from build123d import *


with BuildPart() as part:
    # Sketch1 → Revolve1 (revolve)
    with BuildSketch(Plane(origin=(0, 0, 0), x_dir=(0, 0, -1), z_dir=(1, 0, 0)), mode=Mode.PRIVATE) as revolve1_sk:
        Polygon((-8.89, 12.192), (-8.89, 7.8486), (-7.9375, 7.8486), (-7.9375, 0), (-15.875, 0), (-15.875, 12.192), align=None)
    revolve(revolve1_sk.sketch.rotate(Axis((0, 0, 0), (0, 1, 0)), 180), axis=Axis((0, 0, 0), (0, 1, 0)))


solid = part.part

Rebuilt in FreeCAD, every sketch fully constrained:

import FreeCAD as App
import Part
import Sketcher
Q = App.Units.Quantity

doc = App.newDocument("Part")
body = doc.addObject("PartDesign::Body", "Body")

sketch1 = body.newObject("Sketcher::SketchObject", "Sketch")
sketch1.AttachmentSupport = (doc.getObject("YZ_Plane"), [""])
sketch1.MapMode = "FlatFace"
sketch1.addGeometry([
    Part.LineSegment(App.Vector(7.8, 8.9, 0), App.Vector(12.2, 8.9, 0)),
    Part.LineSegment(App.Vector(12.2, 8.9, 0), App.Vector(12.2, 15.9, 0)),
    Part.LineSegment(App.Vector(12.2, 15.9, 0), App.Vector(0, 15.9, 0)),
    Part.LineSegment(App.Vector(0, 15.9, 0), App.Vector(0, 7.9, 0)),
    Part.LineSegment(App.Vector(0, 7.9, 0), App.Vector(7.8, 7.9, 0)),
    Part.LineSegment(App.Vector(7.8, 7.9, 0), App.Vector(7.8, 8.9, 0)),
], False)
sketch1.addConstraint([
    Sketcher.Constraint("Coincident", 0, 2, 1, 1),
    Sketcher.Constraint("Coincident", 1, 2, 2, 1),
    Sketcher.Constraint("Coincident", 2, 2, 3, 1),
    Sketcher.Constraint("Coincident", 3, 2, 4, 1),
    Sketcher.Constraint("Coincident", 4, 2, 5, 1),
    Sketcher.Constraint("Coincident", 5, 2, 0, 1),
    Sketcher.Constraint("Horizontal", 0),
    Sketcher.Constraint("Vertical", 1),
    Sketcher.Constraint("Horizontal", 2),
    Sketcher.Constraint("Vertical", 3),
    Sketcher.Constraint("Horizontal", 4),
    Sketcher.Constraint("Vertical", 5),
    Sketcher.Constraint("PointOnObject", 2, 2, -2),
    Sketcher.Constraint("DistanceX", 2, 2, 2, 1, Q("0.48 in")),
    Sketcher.Constraint("DistanceX", 0, 1, 0, 2, Q("0.171 in")),
    Sketcher.Constraint("DistanceY", 1, 1, 1, 2, Q("0.275 in")),
    Sketcher.Constraint("DistanceY", 3, 2, 3, 1, Q("0.3125 in")),
    Sketcher.Constraint("DistanceY", -1, 1, 0, 2, Q("0.35 in")),
])
revolution = body.newObject("PartDesign::Revolution", "Revolution")
revolution.Profile = sketch1
revolution.ReferenceAxis = (sketch1, ["H_Axis"])
revolution.Angle = 360

doc.recompute()
